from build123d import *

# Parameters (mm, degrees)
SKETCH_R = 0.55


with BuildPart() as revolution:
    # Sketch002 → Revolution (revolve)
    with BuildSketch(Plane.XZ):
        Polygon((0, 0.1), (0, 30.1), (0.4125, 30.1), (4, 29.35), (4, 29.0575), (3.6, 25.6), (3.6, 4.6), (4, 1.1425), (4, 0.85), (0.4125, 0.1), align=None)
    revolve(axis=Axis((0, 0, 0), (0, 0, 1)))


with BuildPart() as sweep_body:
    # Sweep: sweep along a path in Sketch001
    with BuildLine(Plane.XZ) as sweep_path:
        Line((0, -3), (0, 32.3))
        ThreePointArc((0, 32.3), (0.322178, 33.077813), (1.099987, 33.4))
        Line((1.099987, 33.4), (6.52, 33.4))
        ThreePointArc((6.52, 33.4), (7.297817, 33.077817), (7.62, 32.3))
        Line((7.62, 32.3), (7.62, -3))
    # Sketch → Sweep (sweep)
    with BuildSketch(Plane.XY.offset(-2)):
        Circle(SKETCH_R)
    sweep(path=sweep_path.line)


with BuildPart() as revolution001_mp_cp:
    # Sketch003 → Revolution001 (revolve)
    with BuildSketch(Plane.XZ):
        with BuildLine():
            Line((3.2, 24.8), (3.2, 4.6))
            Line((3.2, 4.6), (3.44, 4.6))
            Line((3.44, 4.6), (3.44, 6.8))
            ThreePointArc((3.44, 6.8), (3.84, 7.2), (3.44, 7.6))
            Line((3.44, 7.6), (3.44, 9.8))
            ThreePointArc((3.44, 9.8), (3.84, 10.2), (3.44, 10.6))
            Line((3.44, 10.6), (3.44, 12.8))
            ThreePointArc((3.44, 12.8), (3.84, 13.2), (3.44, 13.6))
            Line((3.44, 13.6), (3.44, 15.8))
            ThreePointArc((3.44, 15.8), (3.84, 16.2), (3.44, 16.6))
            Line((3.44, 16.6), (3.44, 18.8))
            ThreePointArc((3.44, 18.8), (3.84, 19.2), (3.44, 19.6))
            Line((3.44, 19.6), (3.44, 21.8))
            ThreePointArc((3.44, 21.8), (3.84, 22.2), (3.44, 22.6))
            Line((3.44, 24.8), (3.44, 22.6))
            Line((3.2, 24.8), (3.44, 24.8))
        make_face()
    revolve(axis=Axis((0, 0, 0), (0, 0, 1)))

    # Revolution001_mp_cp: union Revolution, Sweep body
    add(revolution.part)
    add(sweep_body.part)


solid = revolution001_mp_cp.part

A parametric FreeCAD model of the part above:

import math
import FreeCAD as App
import Part
import Sketcher
Q = App.Units.Quantity


def add_polygon(sketch, points):
    """Adds a closed chain of lines whose ends are joined by coincident constraints."""
    first, n = sketch.GeometryCount, len(points)
    for a, b in zip(points, points[1:] + points[:1]):
        sketch.addGeometry(Part.LineSegment(App.Vector(*a, 0), App.Vector(*b, 0)), False)
    for i in range(n):
        sketch.addConstraint(Sketcher.Constraint("Coincident", first + i, 2, first + (i + 1) % n, 1))

doc = App.newDocument("Part")
params = doc.addObject("Spreadsheet::Sheet", "Params")
for row, (alias, value) in enumerate([
    ("sketch1_height", "30 mm"),
    ("sketch1_height2", "21 mm"),
    ("revolution_angle", "360 deg"),
    ("sketch2_diameter", "1.1 mm"),
    ("sketch3_radius", "1.1 mm"),
    ("sketch3_height", "35.3 mm"),
    ("sketch4_radius", "0.4 mm"),
    ("sketch4_height", "20.2 mm"),
    ("sketch4_width", "0.24 mm"),
    ("revolution2_angle", "360 deg"),
], start=1):
    params.set(f"A{row}", alias)
    params.set(f"B{row}", "=" + value)
    params.setAlias(f"B{row}", alias)

body = doc.addObject("PartDesign::Body", "Body")

sketch1 = body.newObject("Sketcher::SketchObject", "Sketch")
sketch1.AttachmentSupport = (doc.getObject("XZ_Plane"), [""])
sketch1.MapMode = "FlatFace"
add_polygon(sketch1, [(0, 30.1), (0, 0.1), (0.41, 0.1), (4, 0.85), (4, 1.14), (3.6, 4.6), (3.6, 25.6), (4, 29.06), (4, 29.35), (0.41, 30.1)])
sketch1.addConstraint([
    Sketcher.Constraint("Vertical", 0),
    Sketcher.Constraint("Horizontal", 1),
    Sketcher.Constraint("Vertical", 3),
    Sketcher.Constraint("Vertical", 5),
    Sketcher.Constraint("Vertical", 7),
    Sketcher.Constraint("Horizontal", 9),
    Sketcher.Constraint("PointOnObject", 0, 2, -2),
    Sketcher.Constraint("Vertical", 3, 2, 6, 2),
    Sketcher.Constraint("Vertical", 1, 2, 8, 2),
    Sketcher.Constraint("Equal", 3, 7),
    Sketcher.Constraint("Equal", 4, 6),
    Sketcher.Constraint("Equal", 2, 8),
    Sketcher.Constraint("DistanceY", 0, 2, 0, 1, Q("30 mm")),
    Sketcher.Constraint("DistanceY", 5, 1, 5, 2, Q("21 mm")),
    Sketcher.Constraint("DistanceX", -1, 1, 2, 2, Q("4 mm")),
    Sketcher.Constraint("DistanceY", -1, 1, 0, 2, Q("0.1 mm")),
    Sketcher.Constraint("DistanceX", -1, 1, 4, 2, Q("3.6 mm")),
    Sketcher.Constraint("DistanceY", 2, 2, 7, 2, Q("28.5 mm")),
    Sketcher.Constraint("DistanceX", 1, 1, 1, 2, Q("0.4125 mm")),
    Sketcher.Constraint("DistanceY", 3, 1, 3, 2, Q("0.2925 mm")),
])
sketch1.setExpression("Constraints[22]", "Params.sketch1_height")
sketch1.setExpression("Constraints[23]", "Params.sketch1_height2")
revolution = body.newObject("PartDesign::Revolution", "Revolution")
revolution.Profile = sketch1
revolution.ReferenceAxis = (sketch1, ["V_Axis"])
revolution.setExpression("Angle", "Params.revolution_angle")
body2 = doc.addObject("PartDesign::Body", "Body001")

sketch2 = body2.newObject("Sketcher::SketchObject", "Sketch001")
sketch2.AttachmentSupport = (doc.getObject("XY_Plane001"), [""])
sketch2.MapMode = "FlatFace"
sketch2.AttachmentOffset = App.Placement(App.Vector(0, 0, -2), App.Rotation())
sketch2.addGeometry(Part.Circle(App.Vector(0, 0, 0), App.Vector(0, 0, 1), 0.6), False)
sketch2.addConstraint([
    Sketcher.Constraint("Coincident", 0, 3, -1, 1),
    Sketcher.Constraint("Diameter", 0, Q("1.1 mm")),
])
sketch2.setExpression("Constraints[1]", "Params.sketch2_diameter")

sketch3 = body2.newObject("Sketcher::SketchObject", "Sketch002")
sketch3.AttachmentSupport = (doc.getObject("XZ_Plane001"), [""])
sketch3.MapMode = "FlatFace"
sketch3.addGeometry([
    Part.LineSegment(App.Vector(0, -3, 0), App.Vector(0, 32.3, 0)),
    Part.ArcOfCircle(Part.Circle(App.Vector(1.1, 32.3, 0), App.Vector(0, 0, 1), 1.1), math.radians(90), math.radians(180)),
    Part.LineSegment(App.Vector(1.1, 33.4, 0), App.Vector(6.5, 33.4, 0)),
    Part.ArcOfCircle(Part.Circle(App.Vector(6.5, 32.3, 0), App.Vector(0, 0, 1), 1.1), math.radians(0), math.radians(90)),
    Part.LineSegment(App.Vector(7.6, 32.3, 0), App.Vector(7.6, -3, 0)),
], False)
sketch3.addConstraint([
    Sketcher.Constraint("Tangent", 0, 2, 1, 2),
    Sketcher.Constraint("Coincident", 1, 1, 2, 1),
    Sketcher.Constraint("Tangent", 2, 2, 3, 2),
    Sketcher.Constraint("Tangent", 3, 1, 4, 1),
    Sketcher.Constraint("Vertical", 0),
    Sketcher.Constraint("Horizontal", 2),
    Sketcher.Constraint("Vertical", 4),
    Sketcher.Constraint("Equal", 1, 3),
    Sketcher.Constraint("PointOnObject", 0, 1, -2),
    Sketcher.Constraint("Horizontal", 0, 1, 4, 2),
    Sketcher.Constraint("Radius", 1, Q("1.1 mm")),
    Sketcher.Constraint("DistanceY", 0, 1, 0, 2, Q("35.3 mm")),
    Sketcher.Constraint("DistanceY", 0, 1, -1, 1, Q("3 mm")),
    Sketcher.Constraint("DistanceX", -1, 1, 3, 3, Q("6.519998 mm")),
    Sketcher.Constraint("DistanceX", 2, 1, 2, 2, Q("5.420013 mm")),
])
sketch3.setExpression("Constraints[10]", "Params.sketch3_radius")
sketch3.setExpression("Constraints[11]", "Params.sketch3_height")
doc.recompute()

additivepipe = body2.newObject("PartDesign::AdditivePipe", "AdditivePipe")
additivepipe.Profile = sketch2
additivepipe.Spine = (sketch3, ["Edge1", "Edge2", "Edge3", "Edge4", "Edge5"])
body3 = doc.addObject("PartDesign::Body", "Body002")

sketch4 = body3.newObject("Sketcher::SketchObject", "Sketch003")
sketch4.AttachmentSupport = (doc.getObject("XZ_Plane002"), [""])
sketch4.MapMode = "FlatFace"
sketch4.addGeometry([
    Part.LineSegment(App.Vector(3.2, 24.8, 0), App.Vector(3.2, 4.6, 0)),
    Part.LineSegment(App.Vector(3.2, 4.6, 0), App.Vector(3.44, 4.6, 0)),
    Part.LineSegment(App.Vector(3.44, 4.6, 0), App.Vector(3.44, 6.8, 0)),
    Part.ArcOfCircle(Part.Circle(App.Vector(3.44, 7.2, 0), App.Vector(0, 0, 1), 0.4), math.radians(-90), math.radians(90)),
    Part.LineSegment(App.Vector(3.44, 7.6, 0), App.Vector(3.44, 9.8, 0)),
    Part.ArcOfCircle(Part.Circle(App.Vector(3.44, 10.2, 0), App.Vector(0, 0, 1), 0.4), math.radians(-90), math.radians(90)),
    Part.LineSegment(App.Vector(3.44, 10.6, 0), App.Vector(3.44, 12.8, 0)),
    Part.ArcOfCircle(Part.Circle(App.Vector(3.44, 13.2, 0), App.Vector(0, 0, 1), 0.4), math.radians(-90), math.radians(90)),
    Part.LineSegment(App.Vector(3.44, 13.6, 0), App.Vector(3.44, 15.8, 0)),
    Part.ArcOfCircle(Part.Circle(App.Vector(3.44, 16.2, 0), App.Vector(0, 0, 1), 0.4), math.radians(-90), math.radians(90)),
    Part.LineSegment(App.Vector(3.44, 16.6, 0), App.Vector(3.44, 18.8, 0)),
    Part.ArcOfCircle(Part.Circle(App.Vector(3.44, 19.2, 0), App.Vector(0, 0, 1), 0.4), math.radians(-90), math.radians(90)),
    Part.LineSegment(App.Vector(3.44, 19.6, 0), App.Vector(3.44, 21.8, 0)),
    Part.ArcOfCircle(Part.Circle(App.Vector(3.44, 22.2, 0), App.Vector(0, 0, 1), 0.4), math.radians(-90), math.radians(90)),
    Part.LineSegment(App.Vector(3.44, 22.6, 0), App.Vector(3.44, 24.8, 0)),
    Part.LineSegment(App.Vector(3.44, 24.8, 0), App.Vector(3.2, 24.8, 0)),
], False)
sketch4.addConstraint([
    Sketcher.Constraint("Coincident", 0, 2, 1, 1),
    Sketcher.Constraint("Coincident", 1, 2, 2, 1),
    Sketcher.Constraint("Coincident", 2, 2, 3, 1),
    Sketcher.Constraint("Coincident", 3, 2, 4, 1),
    Sketcher.Constraint("Coincident", 4, 2, 5, 1),
    Sketcher.Constraint("Coincident", 5, 2, 6, 1),
    Sketcher.Constraint("Coincident", 6, 2, 7, 1),
    Sketcher.Constraint("Coincident", 7, 2, 8, 1),
    Sketcher.Constraint("Coincident", 8, 2, 9, 1),
    Sketcher.Constraint("Coincident", 9, 2, 10, 1),
    Sketcher.Constraint("Coincident", 10, 2, 11, 1),
    Sketcher.Constraint("Coincident", 11, 2, 12, 1),
    Sketcher.Constraint("Coincident", 12, 2, 13, 1),
    Sketcher.Constraint("Coincident", 13, 2, 14, 1),
    Sketcher.Constraint("Coincident", 14, 2, 15, 1),
    Sketcher.Constraint("Coincident", 15, 2, 0, 1),
    Sketcher.Constraint("Vertical", 0),
    Sketcher.Constraint("Horizontal", 1),
    Sketcher.Constraint("Vertical", 2),
    Sketcher.Constraint("Vertical", 4),
    Sketcher.Constraint("Vertical", 6),
    Sketcher.Constraint("Vertical", 8),
    Sketcher.Constraint("Vertical", 10),
    Sketcher.Constraint("Vertical", 12),
    Sketcher.Constraint("Vertical", 14),
    Sketcher.Constraint("Horizontal", 15),
    Sketcher.Constraint("Equal", 3, 5),
    Sketcher.Constraint("Equal", 5, 7),
    Sketcher.Constraint("Equal", 7, 9),
    Sketcher.Constraint("Equal", 9, 11),
    Sketcher.Constraint("Equal", 11, 13),
    Sketcher.Constraint("Vertical", 3, 3, 5, 3),
    Sketcher.Constraint("Vertical", 5, 3, 7, 3),
    Sketcher.Constraint("Vertical", 7, 3, 9, 3),
    Sketcher.Constraint("Vertical", 9, 3, 11, 3),
    Sketcher.Constraint("Vertical", 11, 3, 13, 3),
    Sketcher.Constraint("Vertical", 13, 3, 1, 2),
    Sketcher.Constraint("Vertical", 2, 2, 3, 2),
    Sketcher.Constraint("Vertical", 4, 2, 5, 2),
    Sketcher.Constraint("Vertical", 6, 2, 7, 2),
    Sketcher.Constraint("Vertical", 8, 2, 9, 2),
    Sketcher.Constraint("Vertical", 10, 2, 11, 2),
    Sketcher.Constraint("Vertical", 12, 2, 13, 2),
    Sketcher.Constraint("Equal", 2, 4),
    Sketcher.Constraint("Equal", 4, 6),
    Sketcher.Constraint("Equal", 6, 8),
    Sketcher.Constraint("Equal", 8, 10),
    Sketcher.Constraint("Equal", 10, 12),
    Sketcher.Constraint("Equal", 12, 14),
    Sketcher.Constraint("Radius", 3, Q("0.4 mm")),
    Sketcher.Constraint("DistanceY", 0, 2, 0, 1, Q("20.2 mm")),
    Sketcher.Constraint("DistanceX", 1, 1, 1, 2, Q("0.24 mm")),
    Sketcher.Constraint("DistanceY", -1, 1, 3, 3, Q("7.2 mm")),
    Sketcher.Constraint("DistanceX", -1, 1, 0, 2, Q("3.2 mm")),
])
sketch4.setExpression("Constraints[49]", "Params.sketch4_radius")
sketch4.setExpression("Constraints[50]", "Params.sketch4_height")
sketch4.setExpression("Constraints[51]", "Params.sketch4_width")
revolution2 = body3.newObject("PartDesign::Revolution", "Revolution001")
revolution2.Profile = sketch4
revolution2.ReferenceAxis = (sketch4, ["V_Axis"])
revolution2.setExpression("Angle", "Params.revolution2_angle")
doc.recompute()

boolean = body3.newObject("PartDesign::Boolean", "Boolean")
boolean.Type = "Fuse"
boolean.addObjects([body])
doc.recompute()

boolean2 = body3.newObject("PartDesign::Boolean", "Boolean001")
boolean2.Type = "Fuse"
boolean2.addObjects([body2])

doc.recompute()
